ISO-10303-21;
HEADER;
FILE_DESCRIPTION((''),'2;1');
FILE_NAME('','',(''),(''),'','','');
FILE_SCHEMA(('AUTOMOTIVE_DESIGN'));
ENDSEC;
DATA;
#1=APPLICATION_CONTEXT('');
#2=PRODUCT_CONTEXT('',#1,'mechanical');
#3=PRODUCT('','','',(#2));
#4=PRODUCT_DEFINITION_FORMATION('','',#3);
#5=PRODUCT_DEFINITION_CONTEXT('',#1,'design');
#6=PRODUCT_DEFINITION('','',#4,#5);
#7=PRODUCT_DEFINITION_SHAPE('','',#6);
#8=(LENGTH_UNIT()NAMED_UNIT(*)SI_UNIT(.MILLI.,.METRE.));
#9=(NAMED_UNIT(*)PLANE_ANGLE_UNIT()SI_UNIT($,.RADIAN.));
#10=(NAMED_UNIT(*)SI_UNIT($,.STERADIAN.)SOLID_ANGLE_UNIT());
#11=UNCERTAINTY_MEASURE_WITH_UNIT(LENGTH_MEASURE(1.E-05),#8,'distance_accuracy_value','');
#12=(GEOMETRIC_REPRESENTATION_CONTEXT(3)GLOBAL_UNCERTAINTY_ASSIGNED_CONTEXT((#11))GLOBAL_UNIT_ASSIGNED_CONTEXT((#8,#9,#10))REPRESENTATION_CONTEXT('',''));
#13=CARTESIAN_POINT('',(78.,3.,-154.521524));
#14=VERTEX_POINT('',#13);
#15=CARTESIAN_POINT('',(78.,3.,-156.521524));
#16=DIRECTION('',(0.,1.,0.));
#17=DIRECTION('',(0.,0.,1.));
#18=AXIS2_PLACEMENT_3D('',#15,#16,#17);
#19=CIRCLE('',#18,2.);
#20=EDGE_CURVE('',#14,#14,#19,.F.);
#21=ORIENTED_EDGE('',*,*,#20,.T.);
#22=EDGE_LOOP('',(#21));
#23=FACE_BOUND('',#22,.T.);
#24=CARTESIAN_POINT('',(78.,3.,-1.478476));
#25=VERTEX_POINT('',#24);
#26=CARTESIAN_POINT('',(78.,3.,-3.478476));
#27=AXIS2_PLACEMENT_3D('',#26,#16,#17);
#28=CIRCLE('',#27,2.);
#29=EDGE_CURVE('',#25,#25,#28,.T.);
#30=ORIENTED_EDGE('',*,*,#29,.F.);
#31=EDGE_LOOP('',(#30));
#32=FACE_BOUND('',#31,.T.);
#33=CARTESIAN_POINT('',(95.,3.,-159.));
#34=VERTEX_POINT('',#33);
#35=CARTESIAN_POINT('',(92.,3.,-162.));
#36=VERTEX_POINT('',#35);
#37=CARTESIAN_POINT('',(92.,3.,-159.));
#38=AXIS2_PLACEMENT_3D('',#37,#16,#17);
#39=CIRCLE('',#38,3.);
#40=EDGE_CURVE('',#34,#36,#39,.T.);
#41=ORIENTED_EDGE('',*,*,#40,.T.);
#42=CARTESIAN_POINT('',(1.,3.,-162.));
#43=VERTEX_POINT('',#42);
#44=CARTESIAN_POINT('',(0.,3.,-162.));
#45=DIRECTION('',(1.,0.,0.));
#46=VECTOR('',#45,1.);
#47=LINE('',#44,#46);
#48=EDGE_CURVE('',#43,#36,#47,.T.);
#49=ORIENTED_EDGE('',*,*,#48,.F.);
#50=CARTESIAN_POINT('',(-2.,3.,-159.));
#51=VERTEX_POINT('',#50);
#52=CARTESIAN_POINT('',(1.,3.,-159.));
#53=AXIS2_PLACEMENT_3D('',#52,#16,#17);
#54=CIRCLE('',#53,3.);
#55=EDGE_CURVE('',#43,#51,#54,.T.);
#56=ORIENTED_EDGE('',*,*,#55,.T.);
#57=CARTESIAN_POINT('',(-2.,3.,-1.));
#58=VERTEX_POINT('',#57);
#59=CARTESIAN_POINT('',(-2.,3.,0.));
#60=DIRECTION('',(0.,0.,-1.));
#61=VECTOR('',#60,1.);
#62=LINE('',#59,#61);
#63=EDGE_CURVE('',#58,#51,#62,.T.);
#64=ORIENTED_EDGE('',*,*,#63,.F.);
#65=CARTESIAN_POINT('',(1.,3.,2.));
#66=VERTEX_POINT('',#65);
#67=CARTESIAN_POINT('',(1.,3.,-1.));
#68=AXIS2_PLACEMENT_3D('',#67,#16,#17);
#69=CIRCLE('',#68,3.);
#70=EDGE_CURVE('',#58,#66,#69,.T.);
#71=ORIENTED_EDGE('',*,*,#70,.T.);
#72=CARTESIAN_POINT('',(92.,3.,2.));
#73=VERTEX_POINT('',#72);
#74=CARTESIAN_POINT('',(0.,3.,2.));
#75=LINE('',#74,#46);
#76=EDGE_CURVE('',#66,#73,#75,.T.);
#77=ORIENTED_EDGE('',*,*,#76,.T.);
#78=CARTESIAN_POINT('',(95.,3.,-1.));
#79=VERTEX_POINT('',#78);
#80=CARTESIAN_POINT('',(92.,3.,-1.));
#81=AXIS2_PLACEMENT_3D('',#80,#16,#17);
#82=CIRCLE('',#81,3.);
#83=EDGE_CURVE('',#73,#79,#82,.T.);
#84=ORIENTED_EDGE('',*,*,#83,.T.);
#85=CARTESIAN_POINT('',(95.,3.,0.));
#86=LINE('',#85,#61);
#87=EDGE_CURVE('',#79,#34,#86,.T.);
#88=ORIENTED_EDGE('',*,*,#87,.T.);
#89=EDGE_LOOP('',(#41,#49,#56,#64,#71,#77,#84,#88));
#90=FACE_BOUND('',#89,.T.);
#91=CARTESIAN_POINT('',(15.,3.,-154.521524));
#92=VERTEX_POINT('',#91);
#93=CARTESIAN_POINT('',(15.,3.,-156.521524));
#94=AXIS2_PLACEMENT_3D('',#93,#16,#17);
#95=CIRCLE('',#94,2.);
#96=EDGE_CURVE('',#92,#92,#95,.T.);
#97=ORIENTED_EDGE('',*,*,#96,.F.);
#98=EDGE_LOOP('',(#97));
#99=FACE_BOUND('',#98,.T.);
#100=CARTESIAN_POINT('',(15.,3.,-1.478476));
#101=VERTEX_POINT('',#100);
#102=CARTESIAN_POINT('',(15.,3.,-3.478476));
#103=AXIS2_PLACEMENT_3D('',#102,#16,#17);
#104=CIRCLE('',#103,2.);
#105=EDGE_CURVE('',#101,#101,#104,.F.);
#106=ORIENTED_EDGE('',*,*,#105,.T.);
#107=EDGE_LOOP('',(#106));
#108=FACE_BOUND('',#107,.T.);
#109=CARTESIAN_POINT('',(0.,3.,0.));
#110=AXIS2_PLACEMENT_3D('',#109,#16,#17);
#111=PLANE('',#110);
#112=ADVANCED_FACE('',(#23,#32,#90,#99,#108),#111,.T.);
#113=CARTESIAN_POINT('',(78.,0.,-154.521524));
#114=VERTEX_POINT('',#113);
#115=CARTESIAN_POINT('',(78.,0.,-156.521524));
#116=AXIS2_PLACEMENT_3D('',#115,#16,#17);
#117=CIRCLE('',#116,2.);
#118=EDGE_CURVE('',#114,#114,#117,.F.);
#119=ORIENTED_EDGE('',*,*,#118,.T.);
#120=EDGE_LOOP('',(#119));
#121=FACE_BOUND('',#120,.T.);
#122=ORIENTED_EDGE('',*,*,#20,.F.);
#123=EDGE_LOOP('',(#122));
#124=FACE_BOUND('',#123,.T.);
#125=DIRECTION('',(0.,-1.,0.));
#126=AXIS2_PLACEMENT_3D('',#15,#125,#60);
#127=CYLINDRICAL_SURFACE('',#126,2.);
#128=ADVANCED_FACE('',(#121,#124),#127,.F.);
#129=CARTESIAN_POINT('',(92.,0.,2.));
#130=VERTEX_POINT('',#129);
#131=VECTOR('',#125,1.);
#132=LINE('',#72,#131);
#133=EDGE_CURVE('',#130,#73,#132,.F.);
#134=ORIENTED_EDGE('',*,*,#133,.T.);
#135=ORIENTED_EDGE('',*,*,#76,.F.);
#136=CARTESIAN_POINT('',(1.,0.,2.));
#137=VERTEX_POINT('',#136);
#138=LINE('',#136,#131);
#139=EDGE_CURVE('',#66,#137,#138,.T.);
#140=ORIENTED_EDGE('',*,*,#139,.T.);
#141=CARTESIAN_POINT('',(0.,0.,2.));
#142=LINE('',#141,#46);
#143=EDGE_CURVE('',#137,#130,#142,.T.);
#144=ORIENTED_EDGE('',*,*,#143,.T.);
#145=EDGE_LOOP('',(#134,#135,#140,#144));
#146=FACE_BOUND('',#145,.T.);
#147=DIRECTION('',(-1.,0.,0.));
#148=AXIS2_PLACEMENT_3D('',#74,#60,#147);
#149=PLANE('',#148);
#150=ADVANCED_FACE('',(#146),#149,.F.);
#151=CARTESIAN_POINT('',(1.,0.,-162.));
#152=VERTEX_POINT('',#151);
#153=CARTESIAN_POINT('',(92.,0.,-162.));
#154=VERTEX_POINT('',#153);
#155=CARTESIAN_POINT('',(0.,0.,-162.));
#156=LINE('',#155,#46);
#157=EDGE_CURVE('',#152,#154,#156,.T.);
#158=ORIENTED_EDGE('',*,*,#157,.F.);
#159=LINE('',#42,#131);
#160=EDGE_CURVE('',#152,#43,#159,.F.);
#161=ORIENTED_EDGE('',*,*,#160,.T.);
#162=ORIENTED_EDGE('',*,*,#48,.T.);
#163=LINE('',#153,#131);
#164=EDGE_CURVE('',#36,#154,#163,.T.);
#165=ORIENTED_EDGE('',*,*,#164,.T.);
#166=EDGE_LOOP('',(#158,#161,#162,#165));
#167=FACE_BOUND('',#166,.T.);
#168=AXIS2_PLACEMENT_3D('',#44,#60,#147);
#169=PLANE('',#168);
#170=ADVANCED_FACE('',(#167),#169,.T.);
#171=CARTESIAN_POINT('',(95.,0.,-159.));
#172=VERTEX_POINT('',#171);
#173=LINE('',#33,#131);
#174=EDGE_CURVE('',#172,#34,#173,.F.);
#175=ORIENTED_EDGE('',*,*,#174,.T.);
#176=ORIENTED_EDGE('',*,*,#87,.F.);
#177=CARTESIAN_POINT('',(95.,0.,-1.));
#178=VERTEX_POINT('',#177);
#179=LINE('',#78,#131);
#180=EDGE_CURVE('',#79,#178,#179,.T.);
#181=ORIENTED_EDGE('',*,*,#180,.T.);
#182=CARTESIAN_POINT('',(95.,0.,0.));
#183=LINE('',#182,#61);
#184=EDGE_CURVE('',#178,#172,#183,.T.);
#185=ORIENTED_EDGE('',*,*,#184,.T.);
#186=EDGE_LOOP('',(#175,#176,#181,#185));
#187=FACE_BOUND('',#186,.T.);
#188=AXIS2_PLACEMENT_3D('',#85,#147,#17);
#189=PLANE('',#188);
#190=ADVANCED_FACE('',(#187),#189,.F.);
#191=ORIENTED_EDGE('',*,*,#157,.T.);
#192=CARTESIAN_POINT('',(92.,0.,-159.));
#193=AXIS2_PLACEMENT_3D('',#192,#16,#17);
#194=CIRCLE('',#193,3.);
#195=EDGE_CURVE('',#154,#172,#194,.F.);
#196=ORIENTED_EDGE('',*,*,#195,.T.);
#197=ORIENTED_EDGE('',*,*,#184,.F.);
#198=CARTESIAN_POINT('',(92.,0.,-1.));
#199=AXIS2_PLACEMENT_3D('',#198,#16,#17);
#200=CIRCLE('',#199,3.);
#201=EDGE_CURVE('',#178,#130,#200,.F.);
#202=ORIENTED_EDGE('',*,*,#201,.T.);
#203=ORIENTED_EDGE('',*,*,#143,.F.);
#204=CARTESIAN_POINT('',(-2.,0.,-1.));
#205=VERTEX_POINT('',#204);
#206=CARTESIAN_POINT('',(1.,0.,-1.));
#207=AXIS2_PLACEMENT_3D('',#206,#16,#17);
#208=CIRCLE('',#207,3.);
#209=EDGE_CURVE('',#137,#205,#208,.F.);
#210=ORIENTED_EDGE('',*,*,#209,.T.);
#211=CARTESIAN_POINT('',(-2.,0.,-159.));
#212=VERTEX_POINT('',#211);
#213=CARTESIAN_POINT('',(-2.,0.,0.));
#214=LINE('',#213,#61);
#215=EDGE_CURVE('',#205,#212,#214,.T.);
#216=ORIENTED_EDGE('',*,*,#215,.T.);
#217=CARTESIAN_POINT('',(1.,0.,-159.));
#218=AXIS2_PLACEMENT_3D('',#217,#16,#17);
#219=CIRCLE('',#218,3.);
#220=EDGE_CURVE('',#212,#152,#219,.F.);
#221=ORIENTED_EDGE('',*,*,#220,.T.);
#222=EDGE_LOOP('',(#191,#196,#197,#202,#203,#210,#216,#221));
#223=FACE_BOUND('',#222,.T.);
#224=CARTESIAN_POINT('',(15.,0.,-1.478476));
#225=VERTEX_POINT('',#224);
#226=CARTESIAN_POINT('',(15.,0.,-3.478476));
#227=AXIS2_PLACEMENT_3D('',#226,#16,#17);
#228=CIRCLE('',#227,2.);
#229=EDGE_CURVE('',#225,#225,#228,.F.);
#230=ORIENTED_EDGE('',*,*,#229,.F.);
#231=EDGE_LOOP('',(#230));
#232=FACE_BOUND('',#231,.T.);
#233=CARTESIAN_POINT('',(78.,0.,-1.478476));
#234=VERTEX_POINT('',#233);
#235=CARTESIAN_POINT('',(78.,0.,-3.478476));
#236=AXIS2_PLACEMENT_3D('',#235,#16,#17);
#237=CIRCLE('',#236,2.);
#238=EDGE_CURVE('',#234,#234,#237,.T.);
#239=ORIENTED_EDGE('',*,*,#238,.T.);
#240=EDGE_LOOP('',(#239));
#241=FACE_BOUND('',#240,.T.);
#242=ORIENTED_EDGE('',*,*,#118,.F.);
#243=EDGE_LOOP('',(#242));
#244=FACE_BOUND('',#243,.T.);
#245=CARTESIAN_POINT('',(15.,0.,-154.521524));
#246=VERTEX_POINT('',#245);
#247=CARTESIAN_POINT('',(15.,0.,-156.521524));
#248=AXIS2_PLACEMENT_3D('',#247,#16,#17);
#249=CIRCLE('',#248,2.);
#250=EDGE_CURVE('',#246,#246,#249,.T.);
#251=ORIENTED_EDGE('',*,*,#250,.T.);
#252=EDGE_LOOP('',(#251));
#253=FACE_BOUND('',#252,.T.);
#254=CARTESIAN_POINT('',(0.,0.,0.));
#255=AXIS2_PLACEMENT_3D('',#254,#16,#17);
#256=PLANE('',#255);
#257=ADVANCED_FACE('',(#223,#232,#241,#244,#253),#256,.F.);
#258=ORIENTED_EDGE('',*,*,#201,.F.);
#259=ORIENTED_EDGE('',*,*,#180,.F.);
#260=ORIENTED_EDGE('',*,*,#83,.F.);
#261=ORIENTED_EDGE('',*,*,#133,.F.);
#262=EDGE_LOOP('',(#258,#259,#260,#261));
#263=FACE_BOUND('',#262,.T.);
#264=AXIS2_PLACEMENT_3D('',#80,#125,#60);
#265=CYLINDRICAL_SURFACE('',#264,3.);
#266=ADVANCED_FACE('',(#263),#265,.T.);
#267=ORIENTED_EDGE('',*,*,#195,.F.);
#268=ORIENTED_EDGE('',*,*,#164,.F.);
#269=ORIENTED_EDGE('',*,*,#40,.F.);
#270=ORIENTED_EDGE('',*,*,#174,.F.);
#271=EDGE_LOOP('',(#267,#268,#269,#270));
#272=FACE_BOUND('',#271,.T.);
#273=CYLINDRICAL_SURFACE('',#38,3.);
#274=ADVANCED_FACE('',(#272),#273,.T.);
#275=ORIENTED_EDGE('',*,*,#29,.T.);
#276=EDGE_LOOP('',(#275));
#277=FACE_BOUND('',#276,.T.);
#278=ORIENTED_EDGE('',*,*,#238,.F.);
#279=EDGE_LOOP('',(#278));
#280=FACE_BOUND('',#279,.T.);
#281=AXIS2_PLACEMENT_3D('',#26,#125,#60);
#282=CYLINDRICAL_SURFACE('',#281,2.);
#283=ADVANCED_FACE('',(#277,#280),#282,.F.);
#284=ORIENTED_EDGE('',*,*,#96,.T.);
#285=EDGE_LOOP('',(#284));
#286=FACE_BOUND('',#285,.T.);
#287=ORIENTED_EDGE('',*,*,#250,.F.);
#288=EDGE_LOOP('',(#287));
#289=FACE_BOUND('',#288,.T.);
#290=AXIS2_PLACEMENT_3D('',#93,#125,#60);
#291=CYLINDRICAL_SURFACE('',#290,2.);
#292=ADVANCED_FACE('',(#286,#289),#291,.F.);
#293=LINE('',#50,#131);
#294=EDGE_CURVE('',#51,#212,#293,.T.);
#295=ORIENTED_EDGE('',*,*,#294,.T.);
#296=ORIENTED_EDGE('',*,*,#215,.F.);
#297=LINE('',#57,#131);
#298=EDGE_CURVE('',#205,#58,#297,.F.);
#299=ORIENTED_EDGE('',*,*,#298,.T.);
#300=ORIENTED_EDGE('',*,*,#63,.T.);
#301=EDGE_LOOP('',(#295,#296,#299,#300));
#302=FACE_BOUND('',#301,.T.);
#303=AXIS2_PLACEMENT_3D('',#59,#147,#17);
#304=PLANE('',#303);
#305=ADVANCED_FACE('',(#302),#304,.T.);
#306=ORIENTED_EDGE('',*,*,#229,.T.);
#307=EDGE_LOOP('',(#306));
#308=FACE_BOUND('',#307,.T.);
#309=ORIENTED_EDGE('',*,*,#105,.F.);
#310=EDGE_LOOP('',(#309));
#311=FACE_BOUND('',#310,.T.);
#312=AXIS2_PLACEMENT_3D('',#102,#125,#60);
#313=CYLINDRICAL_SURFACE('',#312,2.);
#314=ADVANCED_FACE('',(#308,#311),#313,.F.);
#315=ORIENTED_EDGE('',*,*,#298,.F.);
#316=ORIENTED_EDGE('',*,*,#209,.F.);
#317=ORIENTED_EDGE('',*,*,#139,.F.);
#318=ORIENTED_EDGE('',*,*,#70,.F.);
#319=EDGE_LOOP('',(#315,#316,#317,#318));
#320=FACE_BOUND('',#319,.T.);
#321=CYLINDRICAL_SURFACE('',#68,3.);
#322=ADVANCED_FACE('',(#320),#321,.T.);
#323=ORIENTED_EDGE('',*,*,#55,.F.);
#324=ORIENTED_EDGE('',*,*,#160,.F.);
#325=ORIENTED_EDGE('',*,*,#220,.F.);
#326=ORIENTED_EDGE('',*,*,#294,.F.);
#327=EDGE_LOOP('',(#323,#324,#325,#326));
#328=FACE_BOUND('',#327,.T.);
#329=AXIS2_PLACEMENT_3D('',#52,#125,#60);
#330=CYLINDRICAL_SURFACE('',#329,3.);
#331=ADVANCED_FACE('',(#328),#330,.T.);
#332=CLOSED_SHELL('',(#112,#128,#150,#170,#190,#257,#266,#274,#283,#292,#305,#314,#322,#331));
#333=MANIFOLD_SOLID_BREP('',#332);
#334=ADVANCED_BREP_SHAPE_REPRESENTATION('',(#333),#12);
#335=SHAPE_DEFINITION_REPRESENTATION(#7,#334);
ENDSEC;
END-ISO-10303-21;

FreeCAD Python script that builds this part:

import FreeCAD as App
import Part
import Sketcher
from FreeCAD import Vector
Q = App.Units.Quantity


def edges_at(feature, points):
    """Names of the edges that pass closest to the given points."""
    edges = feature.Shape.Edges
    near = lambda p: min(range(len(edges)), key=lambda i: edges[i].distToShape(Part.Vertex(*p))[0])
    return sorted({f"Edge{near(p) + 1}" for p in points})


def add_polygon(sketch, points):
    """Adds a closed chain of lines whose ends are joined by coincident constraints."""
    first, n = sketch.GeometryCount, len(points)
    for a, b in zip(points, points[1:] + points[:1]):
        sketch.addGeometry(Part.LineSegment(App.Vector(*a, 0), App.Vector(*b, 0)), False)
    for i in range(n):
        sketch.addConstraint(Sketcher.Constraint("Coincident", first + i, 2, first + (i + 1) % n, 1))

doc = App.newDocument("Part")
body = doc.addObject("PartDesign::Body", "Body")

# Sketch on XZ plane
sketch1 = body.newObject("Sketcher::SketchObject", "Sketch")
sketch1.AttachmentSupport = (doc.getObject("XZ_Plane"), [""])
sketch1.MapMode = "FlatFace"
add_polygon(sketch1, [(-2, -162), (-2, 2), (95, 2), (95, -162)])  # lines 0-3
sketch1.addGeometry(Part.Circle(Vector(15, -3.5, 0), Vector(0, 0, 1), 2), False)  # 4
sketch1.addGeometry(Part.Circle(Vector(78, -3.5, 0), Vector(0, 0, 1), 2), False)  # 5
sketch1.addGeometry(Part.Circle(Vector(15, -156.5, 0), Vector(0, 0, 1), 2), False)  # 6
sketch1.addGeometry(Part.Circle(Vector(78, -156.5, 0), Vector(0, 0, 1), 2), False)  # 7
sketch1.addConstraint(Sketcher.Constraint("Vertical", 0))
sketch1.addConstraint(Sketcher.Constraint("Horizontal", 1))
sketch1.addConstraint(Sketcher.Constraint("Vertical", 2))
sketch1.addConstraint(Sketcher.Constraint("Horizontal", 3))
sketch1.addConstraint(Sketcher.Constraint("Equal", 4, 5))
sketch1.addConstraint(Sketcher.Constraint("Equal", 5, 6))
sketch1.addConstraint(Sketcher.Constraint("Equal", 6, 7))
sketch1.addConstraint(Sketcher.Constraint("Horizontal", 4, 3, 5, 3))
sketch1.addConstraint(Sketcher.Constraint("Horizontal", 6, 3, 7, 3))
sketch1.addConstraint(Sketcher.Constraint("Vertical", 4, 3, 6, 3))
sketch1.addConstraint(Sketcher.Constraint("Vertical", 5, 3, 7, 3))
sketch1.addConstraint(Sketcher.Constraint("Diameter", 4, Q("4 mm")))
sketch1.addConstraint(Sketcher.Constraint("DistanceX", 1, 1, 1, 2, Q("97 mm")))
sketch1.addConstraint(Sketcher.Constraint("DistanceY", 0, 1, 0, 2, Q("164 mm")))
sketch1.addConstraint(Sketcher.Constraint("DistanceX", -1, 1, 4, 3, Q("15 mm")))
sketch1.addConstraint(Sketcher.Constraint("DistanceX", -1, 1, 5, 3, Q("78 mm")))
sketch1.addConstraint(Sketcher.Constraint("DistanceX", 0, 2, -1, 1, Q("2 mm")))
sketch1.addConstraint(Sketcher.Constraint("DistanceY", -1, 1, 0, 2, Q("2 mm")))
sketch1.addConstraint(Sketcher.Constraint("DistanceY", 6, 3, 4, 3, Q("153.043048 mm")))
sketch1.addConstraint(Sketcher.Constraint("DistanceY", 4, 3, -1, 1, Q("3.478476 mm")))
pad1 = body.newObject("PartDesign::Pad", "Pad")
pad1.Profile = sketch1
pad1.Length = 3
pad1.Reversed = True
doc.recompute()

fillet = body.newObject("PartDesign::Fillet", "Fillet")
fillet.Base = (pad1, edges_at(pad1, [
    (-2, 1.5, -162),
    (95, 1.5, -162),
    (95, 1.5, 2),
    (-2, 1.5, 2),
]))
fillet.Radius = 3

doc.recompute()
